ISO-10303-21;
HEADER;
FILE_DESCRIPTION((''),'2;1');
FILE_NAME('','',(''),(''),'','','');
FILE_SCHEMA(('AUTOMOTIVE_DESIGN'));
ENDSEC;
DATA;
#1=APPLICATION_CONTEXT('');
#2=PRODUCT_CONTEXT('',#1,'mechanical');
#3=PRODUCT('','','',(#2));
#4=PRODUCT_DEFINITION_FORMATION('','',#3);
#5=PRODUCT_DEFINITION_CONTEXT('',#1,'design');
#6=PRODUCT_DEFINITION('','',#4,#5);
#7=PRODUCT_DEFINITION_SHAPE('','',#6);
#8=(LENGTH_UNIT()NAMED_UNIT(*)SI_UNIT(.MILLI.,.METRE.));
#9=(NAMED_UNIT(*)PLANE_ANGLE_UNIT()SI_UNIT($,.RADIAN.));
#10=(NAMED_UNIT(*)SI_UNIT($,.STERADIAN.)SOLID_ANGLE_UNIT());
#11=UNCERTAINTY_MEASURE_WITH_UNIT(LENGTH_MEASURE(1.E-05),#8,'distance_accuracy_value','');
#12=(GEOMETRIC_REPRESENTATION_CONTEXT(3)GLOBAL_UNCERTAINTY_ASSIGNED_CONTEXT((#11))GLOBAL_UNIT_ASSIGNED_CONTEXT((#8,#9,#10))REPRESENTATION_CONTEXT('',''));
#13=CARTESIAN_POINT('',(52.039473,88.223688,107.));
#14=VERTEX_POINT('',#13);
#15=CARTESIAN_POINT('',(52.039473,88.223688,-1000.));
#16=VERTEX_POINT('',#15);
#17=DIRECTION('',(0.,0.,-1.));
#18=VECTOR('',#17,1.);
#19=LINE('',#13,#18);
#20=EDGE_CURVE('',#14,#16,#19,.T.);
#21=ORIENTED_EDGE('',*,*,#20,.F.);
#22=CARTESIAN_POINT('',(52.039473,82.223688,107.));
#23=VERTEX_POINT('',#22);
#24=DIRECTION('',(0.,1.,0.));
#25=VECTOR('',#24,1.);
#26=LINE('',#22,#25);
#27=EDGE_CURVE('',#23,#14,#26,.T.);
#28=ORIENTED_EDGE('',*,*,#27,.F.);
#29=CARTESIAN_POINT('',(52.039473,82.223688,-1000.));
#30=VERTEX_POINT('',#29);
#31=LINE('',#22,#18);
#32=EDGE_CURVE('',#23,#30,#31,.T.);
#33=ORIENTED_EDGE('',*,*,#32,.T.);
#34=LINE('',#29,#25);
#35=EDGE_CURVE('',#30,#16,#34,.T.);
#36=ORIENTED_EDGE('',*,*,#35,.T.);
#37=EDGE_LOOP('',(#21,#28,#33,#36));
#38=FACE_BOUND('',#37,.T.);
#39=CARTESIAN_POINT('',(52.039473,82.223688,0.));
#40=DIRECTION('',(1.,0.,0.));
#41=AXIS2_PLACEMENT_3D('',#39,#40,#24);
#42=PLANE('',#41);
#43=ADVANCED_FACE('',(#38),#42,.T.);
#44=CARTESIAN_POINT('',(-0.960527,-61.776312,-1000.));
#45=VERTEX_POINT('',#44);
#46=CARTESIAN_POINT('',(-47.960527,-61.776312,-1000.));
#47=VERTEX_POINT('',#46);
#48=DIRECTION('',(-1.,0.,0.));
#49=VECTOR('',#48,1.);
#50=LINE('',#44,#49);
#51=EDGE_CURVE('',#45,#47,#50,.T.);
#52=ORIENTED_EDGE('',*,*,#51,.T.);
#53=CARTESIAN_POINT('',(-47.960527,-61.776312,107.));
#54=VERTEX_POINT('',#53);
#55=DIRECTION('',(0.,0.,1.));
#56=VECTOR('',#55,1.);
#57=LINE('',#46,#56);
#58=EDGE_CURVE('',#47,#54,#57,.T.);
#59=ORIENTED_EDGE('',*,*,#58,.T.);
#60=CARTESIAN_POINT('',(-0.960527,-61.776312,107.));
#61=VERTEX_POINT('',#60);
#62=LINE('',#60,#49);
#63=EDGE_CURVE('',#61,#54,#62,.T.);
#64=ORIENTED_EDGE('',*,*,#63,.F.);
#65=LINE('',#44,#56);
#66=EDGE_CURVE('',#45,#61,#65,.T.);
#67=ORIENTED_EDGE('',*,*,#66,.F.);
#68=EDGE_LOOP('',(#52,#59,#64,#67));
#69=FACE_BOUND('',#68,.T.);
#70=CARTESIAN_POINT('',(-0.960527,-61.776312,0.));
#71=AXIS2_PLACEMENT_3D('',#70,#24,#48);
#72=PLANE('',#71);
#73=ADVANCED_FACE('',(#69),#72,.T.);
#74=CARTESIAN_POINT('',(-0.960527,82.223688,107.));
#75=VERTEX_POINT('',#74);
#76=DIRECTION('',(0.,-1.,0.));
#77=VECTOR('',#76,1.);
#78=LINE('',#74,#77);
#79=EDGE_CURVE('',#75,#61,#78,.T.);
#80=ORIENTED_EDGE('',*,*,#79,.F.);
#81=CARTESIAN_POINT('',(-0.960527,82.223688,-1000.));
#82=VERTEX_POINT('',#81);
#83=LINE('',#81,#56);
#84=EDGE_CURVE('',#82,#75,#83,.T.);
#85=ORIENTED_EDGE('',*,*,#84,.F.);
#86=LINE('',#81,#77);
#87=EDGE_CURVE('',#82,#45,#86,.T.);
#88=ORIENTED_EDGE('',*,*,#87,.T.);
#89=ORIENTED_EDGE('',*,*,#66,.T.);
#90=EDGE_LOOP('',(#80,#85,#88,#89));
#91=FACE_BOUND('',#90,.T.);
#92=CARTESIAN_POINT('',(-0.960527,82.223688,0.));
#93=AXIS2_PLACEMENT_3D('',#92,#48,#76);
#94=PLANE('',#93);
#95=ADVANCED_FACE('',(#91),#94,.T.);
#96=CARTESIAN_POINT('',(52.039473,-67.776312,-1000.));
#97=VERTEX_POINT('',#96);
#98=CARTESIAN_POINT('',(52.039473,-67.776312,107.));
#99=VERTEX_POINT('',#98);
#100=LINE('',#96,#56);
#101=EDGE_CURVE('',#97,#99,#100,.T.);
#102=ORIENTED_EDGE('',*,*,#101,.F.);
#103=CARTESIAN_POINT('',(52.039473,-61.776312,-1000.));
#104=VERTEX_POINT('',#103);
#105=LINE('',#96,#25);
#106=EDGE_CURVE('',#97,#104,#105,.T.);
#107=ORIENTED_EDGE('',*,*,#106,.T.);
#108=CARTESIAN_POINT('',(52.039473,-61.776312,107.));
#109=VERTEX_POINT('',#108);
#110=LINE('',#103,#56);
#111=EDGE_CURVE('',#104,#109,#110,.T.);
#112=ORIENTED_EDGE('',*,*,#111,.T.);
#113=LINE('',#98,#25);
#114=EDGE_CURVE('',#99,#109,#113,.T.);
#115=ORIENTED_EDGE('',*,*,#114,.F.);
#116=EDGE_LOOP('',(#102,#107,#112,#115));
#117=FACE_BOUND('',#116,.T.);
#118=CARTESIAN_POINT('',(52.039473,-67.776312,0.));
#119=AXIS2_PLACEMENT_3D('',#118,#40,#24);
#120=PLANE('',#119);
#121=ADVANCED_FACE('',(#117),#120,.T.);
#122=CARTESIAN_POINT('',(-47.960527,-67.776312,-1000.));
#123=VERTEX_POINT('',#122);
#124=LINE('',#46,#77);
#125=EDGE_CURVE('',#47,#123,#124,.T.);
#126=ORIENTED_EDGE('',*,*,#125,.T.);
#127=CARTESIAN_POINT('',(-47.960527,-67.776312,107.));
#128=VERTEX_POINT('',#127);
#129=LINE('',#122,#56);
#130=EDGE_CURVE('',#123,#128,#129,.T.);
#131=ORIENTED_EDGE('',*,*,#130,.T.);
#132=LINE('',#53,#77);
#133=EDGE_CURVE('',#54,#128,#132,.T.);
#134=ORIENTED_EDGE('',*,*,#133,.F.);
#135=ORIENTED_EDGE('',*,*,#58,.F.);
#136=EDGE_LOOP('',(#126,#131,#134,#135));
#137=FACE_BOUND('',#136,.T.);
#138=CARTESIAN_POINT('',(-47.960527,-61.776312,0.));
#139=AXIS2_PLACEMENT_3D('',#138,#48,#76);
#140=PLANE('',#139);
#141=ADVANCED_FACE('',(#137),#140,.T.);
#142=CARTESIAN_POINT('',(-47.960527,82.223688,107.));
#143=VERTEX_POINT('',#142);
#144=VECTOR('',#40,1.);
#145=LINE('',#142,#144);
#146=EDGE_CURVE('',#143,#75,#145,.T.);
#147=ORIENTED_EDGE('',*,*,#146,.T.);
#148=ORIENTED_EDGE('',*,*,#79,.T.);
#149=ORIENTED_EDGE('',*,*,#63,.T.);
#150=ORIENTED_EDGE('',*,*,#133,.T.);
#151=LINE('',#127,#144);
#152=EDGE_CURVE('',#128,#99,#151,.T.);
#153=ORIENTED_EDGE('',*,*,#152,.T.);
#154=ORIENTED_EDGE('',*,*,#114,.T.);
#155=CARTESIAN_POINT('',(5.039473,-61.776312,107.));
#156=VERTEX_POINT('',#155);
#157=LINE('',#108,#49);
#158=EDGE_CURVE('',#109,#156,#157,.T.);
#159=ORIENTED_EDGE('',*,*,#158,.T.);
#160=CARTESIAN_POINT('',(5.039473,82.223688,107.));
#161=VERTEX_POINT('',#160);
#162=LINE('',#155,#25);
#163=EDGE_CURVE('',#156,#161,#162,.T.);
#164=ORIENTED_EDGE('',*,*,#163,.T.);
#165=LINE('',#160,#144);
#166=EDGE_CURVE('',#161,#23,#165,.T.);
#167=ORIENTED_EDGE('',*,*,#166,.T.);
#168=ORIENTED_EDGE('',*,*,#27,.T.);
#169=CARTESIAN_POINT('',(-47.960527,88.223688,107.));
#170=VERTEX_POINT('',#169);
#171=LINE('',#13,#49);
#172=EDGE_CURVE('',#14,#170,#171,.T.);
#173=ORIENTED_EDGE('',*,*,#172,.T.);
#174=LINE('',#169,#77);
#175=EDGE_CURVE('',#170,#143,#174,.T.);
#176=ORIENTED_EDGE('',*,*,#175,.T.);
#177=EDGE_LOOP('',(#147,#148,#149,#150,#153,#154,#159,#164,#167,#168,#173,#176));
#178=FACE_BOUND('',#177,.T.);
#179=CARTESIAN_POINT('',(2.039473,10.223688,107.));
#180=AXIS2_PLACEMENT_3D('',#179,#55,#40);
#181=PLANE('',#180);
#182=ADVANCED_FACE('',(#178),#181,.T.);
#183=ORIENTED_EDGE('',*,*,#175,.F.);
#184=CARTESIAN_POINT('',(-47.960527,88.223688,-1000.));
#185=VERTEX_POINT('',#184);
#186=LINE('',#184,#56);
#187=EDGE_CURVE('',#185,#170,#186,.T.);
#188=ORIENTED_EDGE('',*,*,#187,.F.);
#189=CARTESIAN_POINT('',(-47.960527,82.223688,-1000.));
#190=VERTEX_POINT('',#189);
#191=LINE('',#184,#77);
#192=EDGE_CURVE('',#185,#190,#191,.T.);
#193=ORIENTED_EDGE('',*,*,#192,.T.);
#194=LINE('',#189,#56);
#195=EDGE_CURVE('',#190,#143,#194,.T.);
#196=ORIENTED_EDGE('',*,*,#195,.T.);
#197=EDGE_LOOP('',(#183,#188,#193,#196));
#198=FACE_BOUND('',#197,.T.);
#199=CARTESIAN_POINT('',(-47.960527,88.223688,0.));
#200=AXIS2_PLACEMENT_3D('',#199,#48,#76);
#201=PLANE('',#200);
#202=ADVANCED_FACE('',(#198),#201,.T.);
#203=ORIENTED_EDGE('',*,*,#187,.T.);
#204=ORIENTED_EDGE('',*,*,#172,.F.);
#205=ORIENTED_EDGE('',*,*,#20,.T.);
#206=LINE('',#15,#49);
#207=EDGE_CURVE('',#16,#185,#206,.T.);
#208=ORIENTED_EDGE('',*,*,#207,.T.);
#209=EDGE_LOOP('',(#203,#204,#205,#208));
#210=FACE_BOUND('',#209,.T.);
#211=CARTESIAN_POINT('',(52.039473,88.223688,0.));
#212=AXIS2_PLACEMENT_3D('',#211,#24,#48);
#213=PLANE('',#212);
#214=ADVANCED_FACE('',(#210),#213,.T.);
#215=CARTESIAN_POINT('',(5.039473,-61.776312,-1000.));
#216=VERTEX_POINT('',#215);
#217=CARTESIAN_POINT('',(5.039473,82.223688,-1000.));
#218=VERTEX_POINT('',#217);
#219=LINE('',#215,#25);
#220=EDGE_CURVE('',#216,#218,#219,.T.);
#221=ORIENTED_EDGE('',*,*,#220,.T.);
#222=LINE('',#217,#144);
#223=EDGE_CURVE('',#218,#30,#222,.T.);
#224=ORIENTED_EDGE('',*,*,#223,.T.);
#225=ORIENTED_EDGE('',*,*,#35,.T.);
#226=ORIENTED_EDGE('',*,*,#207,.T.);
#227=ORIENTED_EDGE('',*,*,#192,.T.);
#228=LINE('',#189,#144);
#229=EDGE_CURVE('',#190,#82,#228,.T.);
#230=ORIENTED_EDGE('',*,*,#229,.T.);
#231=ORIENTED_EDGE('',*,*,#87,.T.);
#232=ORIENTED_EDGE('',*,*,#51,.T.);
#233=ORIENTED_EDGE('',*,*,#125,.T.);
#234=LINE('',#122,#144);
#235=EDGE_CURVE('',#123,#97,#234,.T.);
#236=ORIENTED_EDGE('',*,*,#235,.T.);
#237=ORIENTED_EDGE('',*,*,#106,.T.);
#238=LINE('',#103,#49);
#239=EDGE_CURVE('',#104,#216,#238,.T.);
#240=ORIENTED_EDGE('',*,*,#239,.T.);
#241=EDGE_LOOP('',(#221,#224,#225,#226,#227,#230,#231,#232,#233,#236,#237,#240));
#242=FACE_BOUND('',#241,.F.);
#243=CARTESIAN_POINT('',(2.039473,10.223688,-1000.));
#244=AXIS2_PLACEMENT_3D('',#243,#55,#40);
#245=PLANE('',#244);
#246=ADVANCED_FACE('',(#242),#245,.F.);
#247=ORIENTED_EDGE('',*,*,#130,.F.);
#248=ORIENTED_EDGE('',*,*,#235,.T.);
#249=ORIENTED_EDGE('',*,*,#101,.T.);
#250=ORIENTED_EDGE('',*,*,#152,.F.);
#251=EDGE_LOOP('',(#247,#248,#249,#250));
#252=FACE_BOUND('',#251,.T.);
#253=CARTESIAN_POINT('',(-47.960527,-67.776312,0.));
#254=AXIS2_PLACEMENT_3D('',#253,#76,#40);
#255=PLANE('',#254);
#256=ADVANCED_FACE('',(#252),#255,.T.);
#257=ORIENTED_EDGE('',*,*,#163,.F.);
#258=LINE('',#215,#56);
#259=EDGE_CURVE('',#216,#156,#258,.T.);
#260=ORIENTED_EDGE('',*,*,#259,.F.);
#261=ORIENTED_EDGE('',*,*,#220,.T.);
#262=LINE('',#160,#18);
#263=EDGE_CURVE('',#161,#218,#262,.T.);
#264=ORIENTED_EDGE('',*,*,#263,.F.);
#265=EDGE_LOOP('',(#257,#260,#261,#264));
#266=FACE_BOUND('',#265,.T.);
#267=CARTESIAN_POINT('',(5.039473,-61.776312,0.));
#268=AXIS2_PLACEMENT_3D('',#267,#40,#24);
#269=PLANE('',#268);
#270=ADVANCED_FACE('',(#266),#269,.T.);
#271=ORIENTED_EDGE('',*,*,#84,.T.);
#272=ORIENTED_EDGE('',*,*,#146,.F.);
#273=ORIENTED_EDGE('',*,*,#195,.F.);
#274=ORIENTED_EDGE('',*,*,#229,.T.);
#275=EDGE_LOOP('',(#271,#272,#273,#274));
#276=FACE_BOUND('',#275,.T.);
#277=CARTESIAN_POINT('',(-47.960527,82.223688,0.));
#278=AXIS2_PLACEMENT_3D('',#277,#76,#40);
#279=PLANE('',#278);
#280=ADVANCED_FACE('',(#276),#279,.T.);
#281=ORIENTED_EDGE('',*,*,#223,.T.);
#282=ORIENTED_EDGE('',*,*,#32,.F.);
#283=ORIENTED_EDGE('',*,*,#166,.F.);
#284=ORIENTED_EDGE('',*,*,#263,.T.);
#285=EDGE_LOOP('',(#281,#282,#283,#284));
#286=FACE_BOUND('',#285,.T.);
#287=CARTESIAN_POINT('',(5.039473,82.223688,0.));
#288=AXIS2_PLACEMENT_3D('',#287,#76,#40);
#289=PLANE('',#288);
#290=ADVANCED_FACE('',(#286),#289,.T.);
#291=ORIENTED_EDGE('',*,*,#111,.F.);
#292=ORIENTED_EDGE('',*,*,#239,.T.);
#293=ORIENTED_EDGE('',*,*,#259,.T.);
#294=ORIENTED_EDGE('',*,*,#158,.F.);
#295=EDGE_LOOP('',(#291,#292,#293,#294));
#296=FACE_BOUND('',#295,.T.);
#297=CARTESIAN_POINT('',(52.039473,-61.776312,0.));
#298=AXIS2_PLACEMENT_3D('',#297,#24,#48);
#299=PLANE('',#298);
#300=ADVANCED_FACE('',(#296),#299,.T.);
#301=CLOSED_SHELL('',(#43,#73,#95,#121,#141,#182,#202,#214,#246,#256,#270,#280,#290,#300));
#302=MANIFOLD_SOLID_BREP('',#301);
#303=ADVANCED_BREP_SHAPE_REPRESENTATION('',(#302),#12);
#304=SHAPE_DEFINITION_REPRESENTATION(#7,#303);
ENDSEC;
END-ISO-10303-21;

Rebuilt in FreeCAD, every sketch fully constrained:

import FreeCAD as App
import Part
import Sketcher

V = App.Vector
Q = App.Units.Quantity


def add_polygon(sketch, points):
    """Adds a closed chain of lines whose ends are joined by coincident constraints."""
    first, n = sketch.GeometryCount, len(points)
    for a, b in zip(points, points[1:] + points[:1]):
        sketch.addGeometry(Part.LineSegment(App.Vector(*a, 0), App.Vector(*b, 0)), False)
    for i in range(n):
        sketch.addConstraint(Sketcher.Constraint("Coincident", first + i, 2, first + (i + 1) % n, 1))

doc = App.newDocument("Part")
body = doc.addObject("PartDesign::Body", "Body")

sketch1 = doc.addObject("Sketcher::SketchObject", "Sketch")
body.addObject(sketch1)
sketch1.AttachmentSupport = (doc.XY_Plane, [""])
sketch1.MapMode = "FlatFace"
add_polygon(sketch1, [(52, 88), (-48, 88), (-48, 82), (-1, 82), (-1, -62), (-48, -62), (-48, -68), (52, -68), (52, -62), (5, -62), (5, 82), (52, 82)])
sketch1.addConstraint([
    Sketcher.Constraint("Horizontal", 0),
    Sketcher.Constraint("Vertical", 1),
    Sketcher.Constraint("Horizontal", 2),
    Sketcher.Constraint("Vertical", 3),
    Sketcher.Constraint("Horizontal", 4),
    Sketcher.Constraint("Vertical", 5),
    Sketcher.Constraint("Horizontal", 6),
    Sketcher.Constraint("Vertical", 7),
    Sketcher.Constraint("Horizontal", 8),
    Sketcher.Constraint("Vertical", 9),
    Sketcher.Constraint("Horizontal", 10),
    Sketcher.Constraint("Vertical", 11),
    Sketcher.Constraint("Horizontal", 4, 2, 7, 2),
    Sketcher.Constraint("Horizontal", 2, 2, 9, 2),
    Sketcher.Constraint("Vertical", 1, 2, 4, 2),
    Sketcher.Constraint("Vertical", 7, 2, 10, 2),
    Sketcher.Constraint("Equal", 4, 8),
    Sketcher.Constraint("Equal", 1, 5),
    Sketcher.Constraint("DistanceX", 0, 2, 0, 1, Q("100 mm")),
    Sketcher.Constraint("DistanceX", 2, 1, 2, 2, Q("47 mm")),
    Sketcher.Constraint("DistanceY", 1, 2, 1, 1, Q("6 mm")),
    Sketcher.Constraint("DistanceY", 3, 2, 3, 1, Q("144 mm")),
    Sketcher.Constraint("DistanceY", 3, 2, -1, 1, Q("61.776312 mm")),
    Sketcher.Constraint("DistanceX", 0, 2, -1, 1, Q("47.960527 mm")),
])
pad1 = doc.addObject("PartDesign::Pad", "Pad")
body.addObject(pad1)
pad1.Profile = sketch1
pad1.Type = "TwoLengths"
pad1.Length = 107
pad1.Length2 = 1000

doc.recompute()
